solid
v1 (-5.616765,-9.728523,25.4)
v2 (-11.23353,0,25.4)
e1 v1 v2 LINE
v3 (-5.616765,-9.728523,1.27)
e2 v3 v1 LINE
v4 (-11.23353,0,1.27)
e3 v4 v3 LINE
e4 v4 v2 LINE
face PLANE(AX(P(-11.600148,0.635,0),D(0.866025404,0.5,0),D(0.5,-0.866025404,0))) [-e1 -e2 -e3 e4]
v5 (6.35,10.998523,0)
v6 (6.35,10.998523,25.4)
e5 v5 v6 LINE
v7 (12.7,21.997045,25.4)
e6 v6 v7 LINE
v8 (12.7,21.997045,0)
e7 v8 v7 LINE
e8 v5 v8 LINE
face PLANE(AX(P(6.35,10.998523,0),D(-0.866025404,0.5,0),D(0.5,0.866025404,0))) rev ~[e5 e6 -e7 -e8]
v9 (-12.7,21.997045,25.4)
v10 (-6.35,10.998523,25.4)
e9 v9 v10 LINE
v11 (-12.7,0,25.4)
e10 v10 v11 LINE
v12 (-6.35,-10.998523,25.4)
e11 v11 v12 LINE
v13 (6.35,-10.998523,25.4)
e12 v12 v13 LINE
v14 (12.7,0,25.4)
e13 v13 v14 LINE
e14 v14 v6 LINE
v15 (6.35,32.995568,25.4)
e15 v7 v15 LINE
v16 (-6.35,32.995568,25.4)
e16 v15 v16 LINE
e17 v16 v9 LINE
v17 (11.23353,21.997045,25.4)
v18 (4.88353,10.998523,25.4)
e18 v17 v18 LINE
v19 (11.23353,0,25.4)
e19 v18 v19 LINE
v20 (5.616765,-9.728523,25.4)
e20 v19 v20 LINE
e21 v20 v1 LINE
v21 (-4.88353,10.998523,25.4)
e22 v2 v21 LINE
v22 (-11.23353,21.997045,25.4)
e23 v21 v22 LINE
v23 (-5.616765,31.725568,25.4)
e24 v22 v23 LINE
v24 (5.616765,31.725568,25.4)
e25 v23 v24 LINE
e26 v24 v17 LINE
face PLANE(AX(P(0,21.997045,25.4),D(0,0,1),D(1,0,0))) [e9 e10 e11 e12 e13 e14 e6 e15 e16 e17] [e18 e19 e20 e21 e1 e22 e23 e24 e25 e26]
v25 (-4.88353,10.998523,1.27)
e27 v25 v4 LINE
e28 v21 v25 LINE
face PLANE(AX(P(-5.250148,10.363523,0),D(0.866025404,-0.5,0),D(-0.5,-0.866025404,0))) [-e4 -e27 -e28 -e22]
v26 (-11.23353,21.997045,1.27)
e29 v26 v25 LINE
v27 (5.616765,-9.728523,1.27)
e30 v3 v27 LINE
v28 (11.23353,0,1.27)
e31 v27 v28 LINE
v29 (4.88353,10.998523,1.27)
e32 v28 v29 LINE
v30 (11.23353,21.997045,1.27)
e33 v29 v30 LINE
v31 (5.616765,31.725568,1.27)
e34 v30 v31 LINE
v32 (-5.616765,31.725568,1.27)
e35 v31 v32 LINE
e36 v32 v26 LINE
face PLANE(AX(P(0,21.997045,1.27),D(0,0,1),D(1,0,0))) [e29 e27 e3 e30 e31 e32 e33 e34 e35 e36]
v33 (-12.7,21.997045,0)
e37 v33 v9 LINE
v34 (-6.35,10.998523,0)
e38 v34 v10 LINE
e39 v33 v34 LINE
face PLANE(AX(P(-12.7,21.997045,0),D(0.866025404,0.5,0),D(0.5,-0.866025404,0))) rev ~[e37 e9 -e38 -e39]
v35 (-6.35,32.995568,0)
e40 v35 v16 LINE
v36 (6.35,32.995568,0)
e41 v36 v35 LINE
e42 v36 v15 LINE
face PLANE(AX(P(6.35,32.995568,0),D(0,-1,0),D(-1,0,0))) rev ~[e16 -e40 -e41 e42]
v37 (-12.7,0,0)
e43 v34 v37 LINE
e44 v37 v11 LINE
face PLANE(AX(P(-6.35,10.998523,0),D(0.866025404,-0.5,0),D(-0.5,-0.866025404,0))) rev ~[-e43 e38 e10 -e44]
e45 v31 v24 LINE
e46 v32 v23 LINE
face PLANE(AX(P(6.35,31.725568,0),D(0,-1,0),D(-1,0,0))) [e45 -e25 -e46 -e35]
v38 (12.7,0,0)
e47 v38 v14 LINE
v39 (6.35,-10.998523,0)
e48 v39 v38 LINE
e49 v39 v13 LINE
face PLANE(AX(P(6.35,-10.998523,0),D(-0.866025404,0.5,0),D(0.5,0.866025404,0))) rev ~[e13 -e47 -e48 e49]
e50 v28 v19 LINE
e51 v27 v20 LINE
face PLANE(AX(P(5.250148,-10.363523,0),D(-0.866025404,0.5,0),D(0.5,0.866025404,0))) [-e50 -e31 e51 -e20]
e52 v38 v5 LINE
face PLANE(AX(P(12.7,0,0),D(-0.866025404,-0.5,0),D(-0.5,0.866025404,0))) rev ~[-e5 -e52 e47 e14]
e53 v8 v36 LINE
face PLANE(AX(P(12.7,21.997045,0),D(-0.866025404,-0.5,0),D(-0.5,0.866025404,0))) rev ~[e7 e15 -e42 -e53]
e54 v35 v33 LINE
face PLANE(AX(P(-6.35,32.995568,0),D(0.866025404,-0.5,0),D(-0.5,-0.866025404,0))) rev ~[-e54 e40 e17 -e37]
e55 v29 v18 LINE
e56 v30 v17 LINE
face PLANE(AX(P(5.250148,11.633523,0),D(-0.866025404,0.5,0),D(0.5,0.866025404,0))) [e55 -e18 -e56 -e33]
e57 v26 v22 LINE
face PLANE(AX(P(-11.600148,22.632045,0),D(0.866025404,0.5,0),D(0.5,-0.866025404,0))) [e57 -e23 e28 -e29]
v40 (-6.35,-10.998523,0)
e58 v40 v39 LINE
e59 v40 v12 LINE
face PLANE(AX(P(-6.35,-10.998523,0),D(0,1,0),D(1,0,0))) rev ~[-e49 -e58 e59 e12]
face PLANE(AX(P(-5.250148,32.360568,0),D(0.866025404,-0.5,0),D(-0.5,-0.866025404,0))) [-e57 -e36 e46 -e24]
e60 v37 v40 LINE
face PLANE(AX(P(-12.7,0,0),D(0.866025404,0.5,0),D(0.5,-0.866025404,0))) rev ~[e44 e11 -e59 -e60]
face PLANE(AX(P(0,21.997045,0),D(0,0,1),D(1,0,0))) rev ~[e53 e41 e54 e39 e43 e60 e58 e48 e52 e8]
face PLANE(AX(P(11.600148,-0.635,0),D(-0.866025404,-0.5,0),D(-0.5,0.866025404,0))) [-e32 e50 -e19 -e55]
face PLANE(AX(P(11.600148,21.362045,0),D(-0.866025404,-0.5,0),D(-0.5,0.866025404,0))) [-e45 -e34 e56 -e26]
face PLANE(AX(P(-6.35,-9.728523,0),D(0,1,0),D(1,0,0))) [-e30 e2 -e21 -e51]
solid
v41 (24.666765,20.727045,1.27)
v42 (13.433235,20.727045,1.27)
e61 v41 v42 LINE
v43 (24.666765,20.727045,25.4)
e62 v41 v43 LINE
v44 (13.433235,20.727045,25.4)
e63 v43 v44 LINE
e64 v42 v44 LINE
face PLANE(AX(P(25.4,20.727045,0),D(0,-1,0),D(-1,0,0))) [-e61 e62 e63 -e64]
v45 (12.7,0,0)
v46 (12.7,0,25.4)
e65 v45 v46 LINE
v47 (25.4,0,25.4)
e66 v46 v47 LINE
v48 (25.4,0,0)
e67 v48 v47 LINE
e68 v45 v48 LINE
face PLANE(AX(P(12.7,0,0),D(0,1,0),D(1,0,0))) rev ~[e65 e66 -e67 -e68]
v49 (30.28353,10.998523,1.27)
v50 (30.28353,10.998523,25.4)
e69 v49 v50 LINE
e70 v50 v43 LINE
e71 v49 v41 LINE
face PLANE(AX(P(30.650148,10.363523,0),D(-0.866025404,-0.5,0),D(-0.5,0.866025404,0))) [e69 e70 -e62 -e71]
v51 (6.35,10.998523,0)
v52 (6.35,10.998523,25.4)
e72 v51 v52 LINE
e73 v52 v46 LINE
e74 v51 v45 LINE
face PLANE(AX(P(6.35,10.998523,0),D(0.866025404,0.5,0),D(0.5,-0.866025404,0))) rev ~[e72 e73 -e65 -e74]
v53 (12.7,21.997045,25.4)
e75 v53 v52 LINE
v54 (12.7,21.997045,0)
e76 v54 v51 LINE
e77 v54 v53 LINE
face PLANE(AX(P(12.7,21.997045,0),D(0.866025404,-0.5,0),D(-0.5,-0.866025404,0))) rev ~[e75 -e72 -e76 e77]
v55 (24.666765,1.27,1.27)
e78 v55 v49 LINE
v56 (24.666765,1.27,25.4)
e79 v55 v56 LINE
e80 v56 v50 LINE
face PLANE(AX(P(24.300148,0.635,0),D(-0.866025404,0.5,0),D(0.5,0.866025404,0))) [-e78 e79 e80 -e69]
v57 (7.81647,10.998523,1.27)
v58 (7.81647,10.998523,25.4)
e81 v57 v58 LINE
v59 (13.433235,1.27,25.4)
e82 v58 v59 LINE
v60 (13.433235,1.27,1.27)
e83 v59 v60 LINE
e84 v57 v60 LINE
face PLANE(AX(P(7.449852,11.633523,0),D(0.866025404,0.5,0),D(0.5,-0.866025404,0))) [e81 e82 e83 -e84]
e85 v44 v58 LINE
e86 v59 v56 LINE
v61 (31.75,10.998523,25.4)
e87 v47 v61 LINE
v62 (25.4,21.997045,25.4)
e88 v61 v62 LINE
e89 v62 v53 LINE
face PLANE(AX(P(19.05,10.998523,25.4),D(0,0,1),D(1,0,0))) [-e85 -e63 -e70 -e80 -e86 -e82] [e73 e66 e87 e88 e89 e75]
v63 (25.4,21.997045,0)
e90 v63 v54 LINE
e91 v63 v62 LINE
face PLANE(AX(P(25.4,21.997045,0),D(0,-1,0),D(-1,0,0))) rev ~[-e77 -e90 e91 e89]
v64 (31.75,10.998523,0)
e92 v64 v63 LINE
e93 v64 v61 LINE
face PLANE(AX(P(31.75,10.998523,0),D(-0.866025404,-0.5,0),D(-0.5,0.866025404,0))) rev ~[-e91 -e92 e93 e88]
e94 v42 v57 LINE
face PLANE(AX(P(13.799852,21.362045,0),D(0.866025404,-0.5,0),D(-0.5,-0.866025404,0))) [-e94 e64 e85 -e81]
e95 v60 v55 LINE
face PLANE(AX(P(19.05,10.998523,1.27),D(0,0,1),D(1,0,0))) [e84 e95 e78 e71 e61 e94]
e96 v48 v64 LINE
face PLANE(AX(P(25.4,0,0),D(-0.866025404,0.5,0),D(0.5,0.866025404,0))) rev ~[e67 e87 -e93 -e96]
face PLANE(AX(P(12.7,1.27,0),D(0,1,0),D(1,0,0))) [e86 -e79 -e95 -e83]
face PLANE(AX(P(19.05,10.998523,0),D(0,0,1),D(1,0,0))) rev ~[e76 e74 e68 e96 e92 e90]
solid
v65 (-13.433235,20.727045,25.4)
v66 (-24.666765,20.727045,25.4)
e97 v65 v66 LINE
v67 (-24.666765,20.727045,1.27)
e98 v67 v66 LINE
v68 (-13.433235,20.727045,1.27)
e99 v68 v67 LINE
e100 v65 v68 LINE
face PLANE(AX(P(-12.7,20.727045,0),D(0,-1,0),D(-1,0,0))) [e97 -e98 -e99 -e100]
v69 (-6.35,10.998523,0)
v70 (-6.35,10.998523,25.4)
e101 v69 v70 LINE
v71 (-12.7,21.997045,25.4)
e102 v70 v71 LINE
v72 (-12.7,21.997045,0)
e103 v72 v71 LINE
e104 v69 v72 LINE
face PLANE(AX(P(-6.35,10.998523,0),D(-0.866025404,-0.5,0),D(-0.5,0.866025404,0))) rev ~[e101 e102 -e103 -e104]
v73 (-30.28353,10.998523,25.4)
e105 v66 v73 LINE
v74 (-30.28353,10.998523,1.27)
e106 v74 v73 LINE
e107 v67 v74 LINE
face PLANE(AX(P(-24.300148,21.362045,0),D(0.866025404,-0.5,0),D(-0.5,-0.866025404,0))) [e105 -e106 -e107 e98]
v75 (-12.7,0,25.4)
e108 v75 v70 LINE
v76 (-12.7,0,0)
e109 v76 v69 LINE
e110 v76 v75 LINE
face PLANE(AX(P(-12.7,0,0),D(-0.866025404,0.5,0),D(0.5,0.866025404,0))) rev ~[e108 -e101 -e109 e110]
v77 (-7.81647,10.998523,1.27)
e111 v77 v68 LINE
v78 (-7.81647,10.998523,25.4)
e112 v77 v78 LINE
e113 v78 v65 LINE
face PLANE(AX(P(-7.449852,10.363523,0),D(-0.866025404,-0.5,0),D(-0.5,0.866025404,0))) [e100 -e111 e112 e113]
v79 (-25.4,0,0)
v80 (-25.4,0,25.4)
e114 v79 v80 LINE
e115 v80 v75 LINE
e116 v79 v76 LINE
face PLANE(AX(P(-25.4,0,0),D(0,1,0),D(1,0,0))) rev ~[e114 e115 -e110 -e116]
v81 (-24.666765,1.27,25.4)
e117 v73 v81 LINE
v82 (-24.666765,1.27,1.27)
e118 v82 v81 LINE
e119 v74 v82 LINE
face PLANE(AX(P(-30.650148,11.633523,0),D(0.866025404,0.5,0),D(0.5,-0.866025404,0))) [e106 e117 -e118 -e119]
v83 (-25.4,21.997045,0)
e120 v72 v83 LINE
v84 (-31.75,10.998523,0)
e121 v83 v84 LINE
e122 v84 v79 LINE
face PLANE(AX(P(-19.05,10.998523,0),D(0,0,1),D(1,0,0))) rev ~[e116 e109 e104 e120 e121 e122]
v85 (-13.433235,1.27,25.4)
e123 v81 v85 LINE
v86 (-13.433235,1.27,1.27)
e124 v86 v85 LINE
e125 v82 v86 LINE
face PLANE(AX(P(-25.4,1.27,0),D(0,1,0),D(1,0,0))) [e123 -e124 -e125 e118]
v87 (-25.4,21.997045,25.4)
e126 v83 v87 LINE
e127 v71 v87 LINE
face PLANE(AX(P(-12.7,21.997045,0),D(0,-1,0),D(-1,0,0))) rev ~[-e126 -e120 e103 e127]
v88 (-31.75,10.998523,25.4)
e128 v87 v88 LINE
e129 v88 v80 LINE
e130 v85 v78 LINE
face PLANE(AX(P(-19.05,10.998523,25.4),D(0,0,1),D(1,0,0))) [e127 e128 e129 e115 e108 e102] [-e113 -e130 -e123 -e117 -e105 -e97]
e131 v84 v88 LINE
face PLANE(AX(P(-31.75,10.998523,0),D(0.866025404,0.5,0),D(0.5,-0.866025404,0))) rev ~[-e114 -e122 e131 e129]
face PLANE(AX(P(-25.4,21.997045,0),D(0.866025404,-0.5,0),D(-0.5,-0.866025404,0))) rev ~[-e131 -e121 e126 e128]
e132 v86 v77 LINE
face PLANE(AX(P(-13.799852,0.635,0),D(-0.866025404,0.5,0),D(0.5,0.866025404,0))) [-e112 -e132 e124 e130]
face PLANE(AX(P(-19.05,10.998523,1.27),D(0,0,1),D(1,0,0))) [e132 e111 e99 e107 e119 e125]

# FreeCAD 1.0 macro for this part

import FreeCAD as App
import Part
import Sketcher
from FreeCAD import Vector
Q = App.Units.Quantity


def faces_at(feature, points):
    """Names of the faces that lie closest to the given points."""
    faces = feature.Shape.Faces
    near = lambda p: min(range(len(faces)), key=lambda i: faces[i].distToShape(Part.Vertex(*p))[0])
    return sorted({f"Face{near(p) + 1}" for p in points})

doc = App.newDocument("Part")
body = doc.addObject("PartDesign::Body", "Body")

# Sketch on XY plane
sketch1 = body.newObject("Sketcher::SketchObject", "Sketch")
sketch1.AttachmentSupport = (doc.getObject("XY_Plane"), [""])
sketch1.MapMode = "FlatFace"
sketch1.addGeometry([
    Part.LineSegment(Vector(-13, 22, 0), Vector(-25, 22, 0)),  # 0
    Part.LineSegment(Vector(-25, 22, 0), Vector(-32, 11, 0)),  # 1
    Part.LineSegment(Vector(-32, 11, 0), Vector(-25, 0, 0)),  # 2
    Part.LineSegment(Vector(-25, 0, 0), Vector(-13, 0, 0)),  # 3
    Part.LineSegment(Vector(-13, 0, 0), Vector(-6, 11, 0)),  # 4
    Part.LineSegment(Vector(-6, 11, 0), Vector(-13, 22, 0)),  # 5
], False)
sketch1.addConstraint([
    Sketcher.Constraint("Coincident", 0, 2, 1, 1),
    Sketcher.Constraint("Coincident", 1, 2, 2, 1),
    Sketcher.Constraint("Coincident", 2, 2, 3, 1),
    Sketcher.Constraint("Coincident", 3, 2, 4, 1),
    Sketcher.Constraint("Coincident", 4, 2, 5, 1),
    Sketcher.Constraint("Coincident", 5, 2, 0, 1),
    Sketcher.Constraint("Horizontal", 0),
    Sketcher.Constraint("Horizontal", 3),
    Sketcher.Constraint("PointOnObject", 2, 2, -1),
    Sketcher.Constraint("Parallel", 1, 4),
    Sketcher.Constraint("Parallel", 2, 5),
    Sketcher.Constraint("Horizontal", 1, 2, 4, 2),
    Sketcher.Constraint("Vertical", 0, 2, 2, 2),
    Sketcher.Constraint("Vertical", 3, 2, 5, 2),
    Sketcher.Constraint("DistanceX", 0, 2, 0, 1, Q("0.5 in")),
    Sketcher.Constraint("DistanceX", 0, 2, -1, 1, Q("1 in")),
    Sketcher.Constraint("Angle", 1, Q("-120 deg")),
    Sketcher.Constraint("DistanceX", 1, 2, 4, 2, Q("1 in")),
])
pad1 = body.newObject("PartDesign::Pad", "Pad")
pad1.Profile = sketch1
pad1.Length = Q("1 in")
doc.recompute()

thickness = body.newObject("PartDesign::Thickness", "Thickness")
thickness.Base = (pad1, faces_at(pad1, [(-19.05, 10.999, 25.4)]))
thickness.Value = Q("0.05 in")
thickness.Reversed = True
thickness.Join = "Arc"
body2 = doc.addObject("PartDesign::Body", "Body001")

# Sketch on XY plane
sketch2 = body2.newObject("Sketcher::SketchObject", "Sketch001")
sketch2.AttachmentSupport = (doc.getObject("XY_Plane001"), [""])
sketch2.MapMode = "FlatFace"
sketch2.addGeometry([
    Part.LineSegment(Vector(13, 0, 0), Vector(25, 0, 0)),  # 0
    Part.LineSegment(Vector(25, 0, 0), Vector(32, 11, 0)),  # 1
    Part.LineSegment(Vector(32, 11, 0), Vector(25, 22, 0)),  # 2
    Part.LineSegment(Vector(25, 22, 0), Vector(13, 22, 0)),  # 3
    Part.LineSegment(Vector(13, 22, 0), Vector(6, 11, 0)),  # 4
    Part.LineSegment(Vector(6, 11, 0), Vector(13, 0, 0)),  # 5
], False)
sketch2.addConstraint([
    Sketcher.Constraint("Coincident", 0, 2, 1, 1),
    Sketcher.Constraint("Coincident", 1, 2, 2, 1),
    Sketcher.Constraint("Coincident", 2, 2, 3, 1),
    Sketcher.Constraint("Coincident", 3, 2, 4, 1),
    Sketcher.Constraint("Coincident", 4, 2, 5, 1),
    Sketcher.Constraint("Coincident", 5, 2, 0, 1),
    Sketcher.Constraint("Horizontal", 0),
    Sketcher.Constraint("Horizontal", 3),
    Sketcher.Constraint("PointOnObject", 0, 2, -1),
    Sketcher.Constraint("Parallel", 1, 4),
    Sketcher.Constraint("Parallel", 2, 5),
    Sketcher.Constraint("Horizontal", 1, 2, 4, 2),
    Sketcher.Constraint("Vertical", 0, 2, 2, 2),
    Sketcher.Constraint("Vertical", 3, 2, 5, 2),
    Sketcher.Constraint("DistanceX", 0, 1, 0, 2, Q("0.5 in")),
    Sketcher.Constraint("DistanceX", -1, 1, 0, 2, Q("1 in")),
    Sketcher.Constraint("Angle", 1, Q("60 deg")),
    Sketcher.Constraint("DistanceX", 4, 2, 1, 2, Q("1 in")),
])
pad2 = body2.newObject("PartDesign::Pad", "Pad001")
pad2.Profile = sketch2
pad2.Length = Q("1 in")
doc.recompute()

thickness2 = body2.newObject("PartDesign::Thickness", "Thickness001")
thickness2.Base = (pad2, faces_at(pad2, [(19.05, 10.999, 25.4)]))
thickness2.Value = Q("0.05 in")
thickness2.Reversed = True
thickness2.Join = "Arc"
body3 = doc.addObject("PartDesign::Body", "Body002")

# Sketch on XY plane
sketch3 = body3.newObject("Sketcher::SketchObject", "Sketch002")
sketch3.AttachmentSupport = (doc.getObject("XY_Plane002"), [""])
sketch3.MapMode = "FlatFace"
sketch3.addGeometry([
    Part.LineSegment(Vector(6, 11, 0), Vector(13, 22, 0)),  # 0
    Part.LineSegment(Vector(13, 22, 0), Vector(6, 33, 0)),  # 1
    Part.LineSegment(Vector(6, 33, 0), Vector(-6, 33, 0)),  # 2
    Part.LineSegment(Vector(-6, 33, 0), Vector(-13, 22, 0)),  # 3
    Part.LineSegment(Vector(-13, 22, 0), Vector(-6, 11, 0)),  # 4
    Part.LineSegment(Vector(-6, 11, 0), Vector(-13, 0, 0)),  # 5
    Part.LineSegment(Vector(-13, 0, 0), Vector(-6, -11, 0)),  # 6
    Part.LineSegment(Vector(-6, -11, 0), Vector(6, -11, 0)),  # 7
    Part.LineSegment(Vector(6, -11, 0), Vector(13, 0, 0)),  # 8
    Part.LineSegment(Vector(13, 0, 0), Vector(6, 11, 0)),  # 9
], False)
sketch3.addConstraint([
    Sketcher.Constraint("Coincident", 0, 2, 1, 1),
    Sketcher.Constraint("Coincident", 1, 2, 2, 1),
    Sketcher.Constraint("Coincident", 2, 2, 3, 1),
    Sketcher.Constraint("Coincident", 3, 2, 4, 1),
    Sketcher.Constraint("Coincident", 4, 2, 5, 1),
    Sketcher.Constraint("Coincident", 5, 2, 6, 1),
    Sketcher.Constraint("Coincident", 6, 2, 7, 1),
    Sketcher.Constraint("Coincident", 7, 2, 8, 1),
    Sketcher.Constraint("Coincident", 8, 2, 9, 1),
    Sketcher.Constraint("Coincident", 9, 2, 0, 1),
    Sketcher.Constraint("Horizontal", 2),
    Sketcher.Constraint("Horizontal", 7),
    Sketcher.Constraint("Symmetric", 4, 2, 7, 2, -1, 1),
    Sketcher.Constraint("Symmetric", 5, 2, 8, 2, -1, 1),
    Sketcher.Constraint("Symmetric", 6, 2, 9, 2, -1, 1),
    Sketcher.Constraint("Symmetric", 0, 2, 3, 2, -2),
    Sketcher.Constraint("PointOnObject", 5, 2, -1),
    Sketcher.Constraint("Parallel", 0, 3),
    Sketcher.Constraint("Parallel", 1, 4),
    Sketcher.Constraint("Parallel", 3, 5),
    Sketcher.Constraint("Parallel", 4, 6),
    Sketcher.Constraint("Vertical", 2, 2, 4, 2),
    Sketcher.Constraint("Vertical", 3, 2, 5, 2),
    Sketcher.Constraint("DistanceX", 2, 2, 2, 1, Q("0.5 in")),
    Sketcher.Constraint("Angle", 0, Q("60 deg")),
    Sketcher.Constraint("DistanceX", 3, 2, 0, 2, Q("1 in")),
])
pad3 = body3.newObject("PartDesign::Pad", "Pad002")
pad3.Profile = sketch3
pad3.Length = Q("1 in")
doc.recompute()

thickness3 = body3.newObject("PartDesign::Thickness", "Thickness002")
thickness3.Base = (pad3, faces_at(pad3, [(0, 10.999, 25.4)]))
thickness3.Value = Q("0.05 in")
thickness3.Reversed = True
thickness3.Join = "Intersection"

doc.recompute()
